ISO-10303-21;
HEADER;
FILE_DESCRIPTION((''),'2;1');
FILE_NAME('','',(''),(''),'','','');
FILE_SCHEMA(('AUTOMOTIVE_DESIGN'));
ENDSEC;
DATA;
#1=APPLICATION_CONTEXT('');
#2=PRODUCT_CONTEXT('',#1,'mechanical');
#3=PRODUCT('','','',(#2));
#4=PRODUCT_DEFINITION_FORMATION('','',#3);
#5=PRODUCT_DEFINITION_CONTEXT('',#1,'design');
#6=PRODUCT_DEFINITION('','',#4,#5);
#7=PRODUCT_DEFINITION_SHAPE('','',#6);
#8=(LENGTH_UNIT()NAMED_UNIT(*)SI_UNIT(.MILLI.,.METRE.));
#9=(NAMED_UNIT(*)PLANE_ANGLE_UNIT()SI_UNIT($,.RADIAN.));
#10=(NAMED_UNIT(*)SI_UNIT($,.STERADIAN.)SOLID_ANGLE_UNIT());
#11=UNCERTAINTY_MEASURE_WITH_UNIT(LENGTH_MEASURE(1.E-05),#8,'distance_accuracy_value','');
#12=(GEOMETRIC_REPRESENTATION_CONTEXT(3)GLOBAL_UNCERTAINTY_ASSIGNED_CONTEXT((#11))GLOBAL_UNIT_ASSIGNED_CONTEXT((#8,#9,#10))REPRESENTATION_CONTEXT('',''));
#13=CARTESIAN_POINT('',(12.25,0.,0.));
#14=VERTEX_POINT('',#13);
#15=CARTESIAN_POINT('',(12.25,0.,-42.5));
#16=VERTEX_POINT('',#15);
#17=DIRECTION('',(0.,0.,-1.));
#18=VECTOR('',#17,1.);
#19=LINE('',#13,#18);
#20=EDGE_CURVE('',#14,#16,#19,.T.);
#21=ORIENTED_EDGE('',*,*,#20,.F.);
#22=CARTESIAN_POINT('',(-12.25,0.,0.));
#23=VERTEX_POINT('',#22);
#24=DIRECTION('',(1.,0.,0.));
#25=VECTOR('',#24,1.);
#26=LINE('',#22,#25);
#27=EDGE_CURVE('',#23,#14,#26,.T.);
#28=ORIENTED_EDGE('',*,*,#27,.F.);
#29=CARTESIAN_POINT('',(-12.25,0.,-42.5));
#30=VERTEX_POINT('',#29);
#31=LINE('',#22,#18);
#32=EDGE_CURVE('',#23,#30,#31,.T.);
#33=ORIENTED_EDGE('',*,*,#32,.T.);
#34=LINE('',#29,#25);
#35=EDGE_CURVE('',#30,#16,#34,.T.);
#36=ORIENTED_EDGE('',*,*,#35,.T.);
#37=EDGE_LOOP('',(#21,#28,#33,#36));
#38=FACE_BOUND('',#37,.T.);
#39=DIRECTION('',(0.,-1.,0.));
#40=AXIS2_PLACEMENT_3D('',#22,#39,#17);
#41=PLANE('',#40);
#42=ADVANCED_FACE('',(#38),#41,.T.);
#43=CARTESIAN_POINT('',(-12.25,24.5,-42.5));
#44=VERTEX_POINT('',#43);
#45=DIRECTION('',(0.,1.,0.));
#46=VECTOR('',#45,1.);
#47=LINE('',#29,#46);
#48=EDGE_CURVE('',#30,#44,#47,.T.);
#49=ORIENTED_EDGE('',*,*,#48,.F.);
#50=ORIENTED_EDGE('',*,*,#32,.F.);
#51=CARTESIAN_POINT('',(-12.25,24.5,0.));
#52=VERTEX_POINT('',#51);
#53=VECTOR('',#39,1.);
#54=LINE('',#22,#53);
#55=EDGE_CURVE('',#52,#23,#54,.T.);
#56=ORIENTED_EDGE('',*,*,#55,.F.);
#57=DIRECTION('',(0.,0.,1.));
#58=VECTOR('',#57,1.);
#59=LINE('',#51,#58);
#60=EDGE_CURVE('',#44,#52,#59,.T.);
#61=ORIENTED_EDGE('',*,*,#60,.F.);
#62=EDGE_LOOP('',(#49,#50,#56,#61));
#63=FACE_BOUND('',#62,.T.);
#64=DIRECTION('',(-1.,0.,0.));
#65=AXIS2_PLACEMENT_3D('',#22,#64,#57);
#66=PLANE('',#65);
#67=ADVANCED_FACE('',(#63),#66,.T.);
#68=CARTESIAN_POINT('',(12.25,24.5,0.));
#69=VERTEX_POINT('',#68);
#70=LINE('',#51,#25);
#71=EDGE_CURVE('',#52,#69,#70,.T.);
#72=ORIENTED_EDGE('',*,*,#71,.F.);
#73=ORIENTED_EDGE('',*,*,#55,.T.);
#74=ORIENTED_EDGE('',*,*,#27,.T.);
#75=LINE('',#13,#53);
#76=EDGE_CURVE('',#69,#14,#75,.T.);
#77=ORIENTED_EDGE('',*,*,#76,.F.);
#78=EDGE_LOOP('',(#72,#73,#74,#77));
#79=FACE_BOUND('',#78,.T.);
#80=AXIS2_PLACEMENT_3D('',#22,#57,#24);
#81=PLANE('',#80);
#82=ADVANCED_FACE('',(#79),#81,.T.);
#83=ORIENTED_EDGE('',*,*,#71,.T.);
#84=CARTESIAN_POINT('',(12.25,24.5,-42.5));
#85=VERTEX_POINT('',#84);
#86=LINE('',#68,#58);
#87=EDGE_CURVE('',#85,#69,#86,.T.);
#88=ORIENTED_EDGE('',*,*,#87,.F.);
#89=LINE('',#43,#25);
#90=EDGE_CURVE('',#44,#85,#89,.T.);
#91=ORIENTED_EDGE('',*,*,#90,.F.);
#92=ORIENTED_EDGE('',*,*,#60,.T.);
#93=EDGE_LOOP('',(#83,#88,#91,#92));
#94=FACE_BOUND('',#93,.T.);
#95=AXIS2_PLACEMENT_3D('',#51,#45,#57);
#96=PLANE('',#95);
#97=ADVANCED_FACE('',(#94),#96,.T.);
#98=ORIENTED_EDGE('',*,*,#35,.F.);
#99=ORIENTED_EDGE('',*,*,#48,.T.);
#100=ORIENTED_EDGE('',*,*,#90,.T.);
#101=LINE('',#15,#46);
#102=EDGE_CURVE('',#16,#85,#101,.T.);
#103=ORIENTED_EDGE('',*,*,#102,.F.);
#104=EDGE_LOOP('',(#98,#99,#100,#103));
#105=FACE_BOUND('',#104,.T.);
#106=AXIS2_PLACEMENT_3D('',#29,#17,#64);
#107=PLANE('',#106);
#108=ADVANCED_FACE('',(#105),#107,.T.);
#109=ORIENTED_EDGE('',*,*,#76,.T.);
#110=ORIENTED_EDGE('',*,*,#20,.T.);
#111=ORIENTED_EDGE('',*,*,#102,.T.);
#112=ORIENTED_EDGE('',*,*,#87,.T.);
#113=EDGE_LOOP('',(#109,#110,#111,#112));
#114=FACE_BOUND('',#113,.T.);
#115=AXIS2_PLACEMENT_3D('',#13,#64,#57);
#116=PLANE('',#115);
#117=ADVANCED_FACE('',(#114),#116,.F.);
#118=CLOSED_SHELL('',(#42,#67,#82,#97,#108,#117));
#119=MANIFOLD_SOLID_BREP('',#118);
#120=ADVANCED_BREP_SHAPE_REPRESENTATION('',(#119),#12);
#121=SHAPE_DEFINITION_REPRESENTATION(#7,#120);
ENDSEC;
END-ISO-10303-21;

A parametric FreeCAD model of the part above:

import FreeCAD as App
import Part
import Sketcher

doc = App.newDocument("Part")
body = doc.addObject("PartDesign::Body", "Body")

# Sketch on YZ plane
sketch1 = body.newObject("Sketcher::SketchObject", "Sketch")
sketch1.AttachmentSupport = (doc.getObject("YZ_Plane"), [""])
sketch1.MapMode = "FlatFace"
sketch1.addGeometry([
    Part.LineSegment(App.Vector(24, 0, 0), App.Vector(0, 0, 0)),
    Part.LineSegment(App.Vector(0, 0, 0), App.Vector(0, -42, 0)),
    Part.LineSegment(App.Vector(0, -42, 0), App.Vector(24, -42, 0)),
    Part.LineSegment(App.Vector(24, -42, 0), App.Vector(24, 0, 0)),
], False)
sketch1.addConstraint([
    Sketcher.Constraint("Coincident", 0, 2, 1, 1),
    Sketcher.Constraint("Coincident", 1, 2, 2, 1),
    Sketcher.Constraint("Coincident", 2, 2, 3, 1),
    Sketcher.Constraint("Coincident", 3, 2, 0, 1),
    Sketcher.Constraint("Horizontal", 0),
    Sketcher.Constraint("Vertical", 1),
    Sketcher.Constraint("Horizontal", 2),
    Sketcher.Constraint("Vertical", 3),
    Sketcher.Constraint("Coincident", 0, 2, -1, 1),
    Sketcher.Constraint("DistanceX", 0, 2, 0, 1, 24.5),
    Sketcher.Constraint("DistanceY", 1, 2, 1, 1, 42.5),
])
pad1 = body.newObject("PartDesign::Pad", "Pad")
pad1.Profile = sketch1
pad1.Type = "TwoLengths"
pad1.Length = 12.25
pad1.Length2 = 12.25

doc.recompute()
